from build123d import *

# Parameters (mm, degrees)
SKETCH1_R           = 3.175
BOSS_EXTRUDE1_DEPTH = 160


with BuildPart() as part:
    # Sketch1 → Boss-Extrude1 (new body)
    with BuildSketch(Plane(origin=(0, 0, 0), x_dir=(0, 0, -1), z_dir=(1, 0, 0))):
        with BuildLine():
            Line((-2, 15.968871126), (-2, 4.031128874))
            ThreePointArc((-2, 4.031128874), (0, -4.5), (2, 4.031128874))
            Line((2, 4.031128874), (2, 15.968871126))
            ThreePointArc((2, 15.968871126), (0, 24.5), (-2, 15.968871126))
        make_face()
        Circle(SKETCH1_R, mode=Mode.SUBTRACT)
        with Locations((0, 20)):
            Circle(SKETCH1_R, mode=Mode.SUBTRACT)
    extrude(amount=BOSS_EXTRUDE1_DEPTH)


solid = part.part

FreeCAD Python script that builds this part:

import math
import FreeCAD as App
import Part
import Sketcher

doc = App.newDocument("Part")
body = doc.addObject("PartDesign::Body", "Body")

# Sketch on YZ plane
sketch1 = body.newObject("Sketcher::SketchObject", "Sketch")
sketch1.AttachmentSupport = (doc.getObject("YZ_Plane"), [""])
sketch1.MapMode = "FlatFace"
sketch1.addGeometry(Part.LineSegment(App.Vector(16, 2, 0), App.Vector(4, 2, 0)), False)
sketch1.addGeometry(Part.ArcOfCircle(Part.Circle(App.Vector(0, 0, 0), App.Vector(0, 0, 1), 4.5), math.radians(26), math.radians(334)), False)
sketch1.addGeometry(Part.LineSegment(App.Vector(4, -2, 0), App.Vector(16, -2, 0)), False)
sketch1.addGeometry(Part.ArcOfCircle(Part.Circle(App.Vector(20, 0, 0), App.Vector(0, 0, 1), 4.5), math.radians(-154), math.radians(154)), False)
sketch1.addGeometry(Part.Circle(App.Vector(0, 0, 0), App.Vector(0, 0, 1), 3.2), False)
sketch1.addGeometry(Part.Circle(App.Vector(20, 0, 0), App.Vector(0, 0, 1), 3.2), False)
sketch1.addConstraint(Sketcher.Constraint("Coincident", 0, 2, 1, 1))
sketch1.addConstraint(Sketcher.Constraint("Coincident", 1, 2, 2, 1))
sketch1.addConstraint(Sketcher.Constraint("Coincident", 2, 2, 3, 1))
sketch1.addConstraint(Sketcher.Constraint("Coincident", 3, 2, 0, 1))
sketch1.addConstraint(Sketcher.Constraint("Horizontal", 0))
sketch1.addConstraint(Sketcher.Constraint("Horizontal", 2))
sketch1.addConstraint(Sketcher.Constraint("Coincident", 1, 3, -1, 1))
sketch1.addConstraint(Sketcher.Constraint("Coincident", 4, 3, -1, 1))
sketch1.addConstraint(Sketcher.Constraint("Coincident", 5, 3, 3, 3))
sketch1.addConstraint(Sketcher.Constraint("Equal", 1, 3))
sketch1.addConstraint(Sketcher.Constraint("Equal", 4, 5))
sketch1.addConstraint(Sketcher.Constraint("Symmetric", 2, 2, 3, 2, -1))
sketch1.addConstraint(Sketcher.Constraint("Radius", 1, 4.5))
sketch1.addConstraint(Sketcher.Constraint("Diameter", 4, 6.35))
sketch1.addConstraint(Sketcher.Constraint("DistanceX", -1, 1, 3, 3, 20.0))
sketch1.addConstraint(Sketcher.Constraint("DistanceY", -1, 1, 0, 2, 2.0))
pad1 = body.newObject("PartDesign::Pad", "Pad")
pad1.Profile = sketch1
pad1.Length = 160

doc.recompute()
